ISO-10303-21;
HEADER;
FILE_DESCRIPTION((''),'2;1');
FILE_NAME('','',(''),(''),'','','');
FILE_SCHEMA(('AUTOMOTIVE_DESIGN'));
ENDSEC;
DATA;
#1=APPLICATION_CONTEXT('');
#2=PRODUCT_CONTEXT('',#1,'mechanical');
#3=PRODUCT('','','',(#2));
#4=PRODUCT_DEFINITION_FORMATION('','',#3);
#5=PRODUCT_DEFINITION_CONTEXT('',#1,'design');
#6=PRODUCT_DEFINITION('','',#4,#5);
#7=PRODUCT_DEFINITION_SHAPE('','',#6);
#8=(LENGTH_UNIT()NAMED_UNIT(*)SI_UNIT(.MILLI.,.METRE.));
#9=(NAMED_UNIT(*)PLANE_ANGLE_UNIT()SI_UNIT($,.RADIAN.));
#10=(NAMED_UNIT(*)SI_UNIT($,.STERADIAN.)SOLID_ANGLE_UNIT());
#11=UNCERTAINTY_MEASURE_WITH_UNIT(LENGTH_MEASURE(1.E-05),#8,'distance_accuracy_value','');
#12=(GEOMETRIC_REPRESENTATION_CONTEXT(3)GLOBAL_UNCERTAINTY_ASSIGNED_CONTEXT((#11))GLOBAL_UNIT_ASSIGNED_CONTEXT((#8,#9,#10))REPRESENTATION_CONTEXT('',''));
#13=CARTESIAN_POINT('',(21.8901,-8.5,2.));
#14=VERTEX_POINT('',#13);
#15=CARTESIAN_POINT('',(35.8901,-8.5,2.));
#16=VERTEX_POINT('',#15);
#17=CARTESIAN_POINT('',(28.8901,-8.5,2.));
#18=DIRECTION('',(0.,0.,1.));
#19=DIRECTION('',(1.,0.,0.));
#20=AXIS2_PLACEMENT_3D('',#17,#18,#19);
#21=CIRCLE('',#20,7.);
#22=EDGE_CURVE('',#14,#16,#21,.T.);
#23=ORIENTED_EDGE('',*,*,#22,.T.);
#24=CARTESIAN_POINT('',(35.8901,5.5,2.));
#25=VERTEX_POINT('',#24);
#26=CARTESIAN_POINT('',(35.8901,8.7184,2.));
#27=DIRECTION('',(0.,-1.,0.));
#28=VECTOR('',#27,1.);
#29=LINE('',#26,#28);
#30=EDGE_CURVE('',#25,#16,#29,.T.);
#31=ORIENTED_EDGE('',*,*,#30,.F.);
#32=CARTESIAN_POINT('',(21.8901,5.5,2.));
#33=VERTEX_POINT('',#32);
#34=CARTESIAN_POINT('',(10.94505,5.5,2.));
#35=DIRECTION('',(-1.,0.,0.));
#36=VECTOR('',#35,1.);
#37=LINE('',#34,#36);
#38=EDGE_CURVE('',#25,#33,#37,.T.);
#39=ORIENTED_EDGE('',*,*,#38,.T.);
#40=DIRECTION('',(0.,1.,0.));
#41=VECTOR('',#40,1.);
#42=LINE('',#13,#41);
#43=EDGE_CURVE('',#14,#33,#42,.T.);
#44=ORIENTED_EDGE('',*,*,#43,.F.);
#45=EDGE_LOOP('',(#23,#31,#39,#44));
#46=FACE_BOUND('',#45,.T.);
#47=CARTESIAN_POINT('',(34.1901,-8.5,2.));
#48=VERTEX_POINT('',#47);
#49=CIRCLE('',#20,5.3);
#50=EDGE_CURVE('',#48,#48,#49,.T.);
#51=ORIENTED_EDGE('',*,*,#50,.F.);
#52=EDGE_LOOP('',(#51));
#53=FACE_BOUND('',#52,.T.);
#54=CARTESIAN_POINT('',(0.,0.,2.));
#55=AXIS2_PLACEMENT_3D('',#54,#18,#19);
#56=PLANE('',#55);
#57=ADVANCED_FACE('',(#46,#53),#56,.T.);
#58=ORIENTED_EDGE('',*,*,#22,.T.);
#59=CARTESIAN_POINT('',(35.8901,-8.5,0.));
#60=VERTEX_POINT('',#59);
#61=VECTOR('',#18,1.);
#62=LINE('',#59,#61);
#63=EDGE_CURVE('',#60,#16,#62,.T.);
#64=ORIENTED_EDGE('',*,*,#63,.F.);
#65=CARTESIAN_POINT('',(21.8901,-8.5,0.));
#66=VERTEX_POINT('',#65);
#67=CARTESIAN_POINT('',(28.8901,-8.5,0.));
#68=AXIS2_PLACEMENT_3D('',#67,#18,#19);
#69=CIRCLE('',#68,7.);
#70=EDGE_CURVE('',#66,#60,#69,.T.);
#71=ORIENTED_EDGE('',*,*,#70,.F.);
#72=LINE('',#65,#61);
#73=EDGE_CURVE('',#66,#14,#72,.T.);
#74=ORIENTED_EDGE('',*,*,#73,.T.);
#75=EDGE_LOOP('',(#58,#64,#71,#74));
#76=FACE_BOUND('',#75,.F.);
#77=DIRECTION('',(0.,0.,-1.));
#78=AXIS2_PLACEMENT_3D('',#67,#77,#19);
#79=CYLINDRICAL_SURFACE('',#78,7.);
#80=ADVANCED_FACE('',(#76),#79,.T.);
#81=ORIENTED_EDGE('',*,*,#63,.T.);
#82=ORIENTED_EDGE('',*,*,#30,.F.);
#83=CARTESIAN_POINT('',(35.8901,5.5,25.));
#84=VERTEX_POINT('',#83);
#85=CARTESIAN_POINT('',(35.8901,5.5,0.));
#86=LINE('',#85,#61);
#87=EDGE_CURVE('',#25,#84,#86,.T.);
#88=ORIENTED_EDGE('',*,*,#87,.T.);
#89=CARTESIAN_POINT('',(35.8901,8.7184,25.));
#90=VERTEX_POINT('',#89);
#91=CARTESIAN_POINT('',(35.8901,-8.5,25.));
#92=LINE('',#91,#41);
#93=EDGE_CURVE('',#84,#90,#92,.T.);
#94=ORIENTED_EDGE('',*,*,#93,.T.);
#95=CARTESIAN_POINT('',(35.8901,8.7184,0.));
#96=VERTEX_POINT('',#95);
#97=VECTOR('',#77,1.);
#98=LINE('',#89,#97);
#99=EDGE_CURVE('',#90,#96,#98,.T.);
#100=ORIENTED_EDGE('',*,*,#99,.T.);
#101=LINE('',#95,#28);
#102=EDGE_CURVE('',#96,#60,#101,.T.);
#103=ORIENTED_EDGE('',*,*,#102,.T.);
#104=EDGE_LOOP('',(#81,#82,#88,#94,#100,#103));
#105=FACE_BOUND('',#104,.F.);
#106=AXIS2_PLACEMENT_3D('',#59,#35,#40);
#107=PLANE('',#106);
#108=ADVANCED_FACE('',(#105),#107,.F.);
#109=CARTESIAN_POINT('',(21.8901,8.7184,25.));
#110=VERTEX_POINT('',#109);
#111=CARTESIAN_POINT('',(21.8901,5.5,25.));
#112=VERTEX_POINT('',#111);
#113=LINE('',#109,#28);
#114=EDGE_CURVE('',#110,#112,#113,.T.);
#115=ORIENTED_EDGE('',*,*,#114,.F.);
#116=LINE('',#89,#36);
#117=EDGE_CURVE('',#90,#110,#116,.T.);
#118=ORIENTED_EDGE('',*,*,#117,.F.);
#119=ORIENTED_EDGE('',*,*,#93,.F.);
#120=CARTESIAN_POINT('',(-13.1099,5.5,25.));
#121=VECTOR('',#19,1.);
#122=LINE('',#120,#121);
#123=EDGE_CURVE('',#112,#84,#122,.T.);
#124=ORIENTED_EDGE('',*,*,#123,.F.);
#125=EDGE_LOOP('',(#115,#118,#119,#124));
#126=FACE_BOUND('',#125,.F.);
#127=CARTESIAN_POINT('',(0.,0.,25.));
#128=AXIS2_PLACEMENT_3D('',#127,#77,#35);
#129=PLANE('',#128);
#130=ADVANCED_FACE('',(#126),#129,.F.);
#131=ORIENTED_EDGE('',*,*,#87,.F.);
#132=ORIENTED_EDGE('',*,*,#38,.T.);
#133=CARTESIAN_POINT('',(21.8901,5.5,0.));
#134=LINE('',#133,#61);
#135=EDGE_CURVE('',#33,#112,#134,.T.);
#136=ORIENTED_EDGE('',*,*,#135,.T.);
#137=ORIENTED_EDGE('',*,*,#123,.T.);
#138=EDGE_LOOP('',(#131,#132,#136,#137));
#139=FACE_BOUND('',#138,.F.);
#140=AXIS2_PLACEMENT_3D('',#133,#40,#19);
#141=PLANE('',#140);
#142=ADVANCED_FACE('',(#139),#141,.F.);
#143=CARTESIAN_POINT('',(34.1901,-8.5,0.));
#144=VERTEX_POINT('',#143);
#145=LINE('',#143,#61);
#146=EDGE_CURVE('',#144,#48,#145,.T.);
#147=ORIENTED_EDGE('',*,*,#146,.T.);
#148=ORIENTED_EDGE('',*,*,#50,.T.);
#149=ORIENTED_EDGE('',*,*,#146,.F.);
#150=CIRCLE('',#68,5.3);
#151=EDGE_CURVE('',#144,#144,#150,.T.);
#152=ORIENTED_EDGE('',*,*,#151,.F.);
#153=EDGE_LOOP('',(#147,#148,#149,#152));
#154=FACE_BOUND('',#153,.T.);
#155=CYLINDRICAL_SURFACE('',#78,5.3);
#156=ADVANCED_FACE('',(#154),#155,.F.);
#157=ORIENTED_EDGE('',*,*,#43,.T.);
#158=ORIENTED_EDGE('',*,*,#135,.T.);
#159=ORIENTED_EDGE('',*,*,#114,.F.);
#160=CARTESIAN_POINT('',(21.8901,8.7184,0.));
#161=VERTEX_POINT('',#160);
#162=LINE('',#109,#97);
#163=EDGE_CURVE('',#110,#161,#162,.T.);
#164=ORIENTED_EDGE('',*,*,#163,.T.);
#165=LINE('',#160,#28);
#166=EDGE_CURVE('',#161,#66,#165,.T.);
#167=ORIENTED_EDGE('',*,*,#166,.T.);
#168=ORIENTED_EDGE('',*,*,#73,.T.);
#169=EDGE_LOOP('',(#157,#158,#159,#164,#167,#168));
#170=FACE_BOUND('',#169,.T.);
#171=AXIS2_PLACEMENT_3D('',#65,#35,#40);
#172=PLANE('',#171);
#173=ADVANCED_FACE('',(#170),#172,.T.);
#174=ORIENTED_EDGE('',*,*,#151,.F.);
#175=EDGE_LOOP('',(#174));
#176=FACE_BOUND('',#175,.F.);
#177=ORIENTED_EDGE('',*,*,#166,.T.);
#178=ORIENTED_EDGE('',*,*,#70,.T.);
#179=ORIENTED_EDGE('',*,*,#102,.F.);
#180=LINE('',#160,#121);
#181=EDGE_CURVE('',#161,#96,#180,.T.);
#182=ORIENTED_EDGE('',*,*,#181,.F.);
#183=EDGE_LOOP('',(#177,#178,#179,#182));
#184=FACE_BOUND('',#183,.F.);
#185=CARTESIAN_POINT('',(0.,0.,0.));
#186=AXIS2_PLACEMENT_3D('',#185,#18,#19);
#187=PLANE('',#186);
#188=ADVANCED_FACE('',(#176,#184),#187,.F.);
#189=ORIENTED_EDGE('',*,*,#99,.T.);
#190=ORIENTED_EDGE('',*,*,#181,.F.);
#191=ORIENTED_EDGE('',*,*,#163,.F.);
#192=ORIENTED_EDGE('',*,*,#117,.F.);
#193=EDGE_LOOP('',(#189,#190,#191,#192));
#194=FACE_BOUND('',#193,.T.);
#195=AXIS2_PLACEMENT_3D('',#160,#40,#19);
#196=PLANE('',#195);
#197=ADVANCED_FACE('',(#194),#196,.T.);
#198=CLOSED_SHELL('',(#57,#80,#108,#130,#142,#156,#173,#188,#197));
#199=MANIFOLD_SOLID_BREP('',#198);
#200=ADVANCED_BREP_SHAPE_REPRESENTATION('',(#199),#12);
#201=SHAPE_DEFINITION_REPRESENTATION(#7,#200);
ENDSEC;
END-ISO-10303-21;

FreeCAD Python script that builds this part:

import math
import FreeCAD as App
import Part
import Sketcher

V = App.Vector


def add_polygon(sketch, points):
    """Adds a closed chain of lines whose ends are joined by coincident constraints."""
    first, n = sketch.GeometryCount, len(points)
    for a, b in zip(points, points[1:] + points[:1]):
        sketch.addGeometry(Part.LineSegment(App.Vector(*a, 0), App.Vector(*b, 0)), False)
    for i in range(n):
        sketch.addConstraint(Sketcher.Constraint("Coincident", first + i, 2, first + (i + 1) % n, 1))

doc = App.newDocument("Part")
body = doc.addObject("PartDesign::Body", "Body")

sketch1 = body.newObject("Sketcher::SketchObject", "Sketch")
sketch1.AttachmentSupport = (doc.getObject("XY_Plane"), [""])
sketch1.MapMode = "FlatFace"
sketch1.addGeometry([
    Part.ArcOfCircle(Part.Circle(V(29, -8, 0), V(0, 0, 1), 7), math.radians(180), math.radians(360)),
    Part.LineSegment(V(36, -8, 0), V(36, 9, 0)),
    Part.LineSegment(V(36, 9, 0), V(22, 9, 0)),
    Part.LineSegment(V(22, 9, 0), V(22, -8, 0)),
    Part.Circle(V(29, -8, 0), V(0, 0, 1), 5),
], False)
sketch1.addConstraint([
    Sketcher.Constraint("Tangent", 0, 2, 1, 1),
    Sketcher.Constraint("Coincident", 1, 2, 2, 1),
    Sketcher.Constraint("Coincident", 2, 2, 3, 1),
    Sketcher.Constraint("Tangent", 3, 2, 0, 1),
    Sketcher.Constraint("Vertical", 1),
    Sketcher.Constraint("Horizontal", 2),
    Sketcher.Constraint("Vertical", 3),
    Sketcher.Constraint("Coincident", 4, 3, 0, 3),
    Sketcher.Constraint("Radius", 0, 7.0),
    Sketcher.Constraint("Diameter", 4, 10.6),
    Sketcher.Constraint("DistanceY", 0, 3, -1, 1, 8.5),
    Sketcher.Constraint("DistanceX", -1, 1, 0, 3, 28.89),
    Sketcher.Constraint("DistanceY", 1, 1, 1, 2, 17.2184),
])
pad1 = body.newObject("PartDesign::Pad", "Pad")
pad1.Profile = sketch1
pad1.Length = 2

sketch2 = body.newObject("Sketcher::SketchObject", "Sketch001")
sketch2.AttachmentSupport = (doc.getObject("XY_Plane"), [""])
sketch2.MapMode = "FlatFace"
add_polygon(sketch2, [(21.9, 5.5), (21.9, 8.7), (35.9, 8.7), (35.9, 5.5)])
sketch2.addConstraint([
    Sketcher.Constraint("Vertical", 0),
    Sketcher.Constraint("Horizontal", 1),
    Sketcher.Constraint("Vertical", 2),
    Sketcher.Constraint("Horizontal", 3),
    Sketcher.Constraint("DistanceX", 1, 1, 1, 2, 14.0),
    Sketcher.Constraint("DistanceY", -1, 1, 2, 2, 5.5),
    Sketcher.Constraint("DistanceX", -1, 1, 0, 2, 21.89),
    Sketcher.Constraint("DistanceY", 0, 1, 0, 2, 3.2184),
])
pad2 = body.newObject("PartDesign::Pad", "Pad001")
pad2.Profile = sketch2
pad2.Length = 25

doc.recompute()
